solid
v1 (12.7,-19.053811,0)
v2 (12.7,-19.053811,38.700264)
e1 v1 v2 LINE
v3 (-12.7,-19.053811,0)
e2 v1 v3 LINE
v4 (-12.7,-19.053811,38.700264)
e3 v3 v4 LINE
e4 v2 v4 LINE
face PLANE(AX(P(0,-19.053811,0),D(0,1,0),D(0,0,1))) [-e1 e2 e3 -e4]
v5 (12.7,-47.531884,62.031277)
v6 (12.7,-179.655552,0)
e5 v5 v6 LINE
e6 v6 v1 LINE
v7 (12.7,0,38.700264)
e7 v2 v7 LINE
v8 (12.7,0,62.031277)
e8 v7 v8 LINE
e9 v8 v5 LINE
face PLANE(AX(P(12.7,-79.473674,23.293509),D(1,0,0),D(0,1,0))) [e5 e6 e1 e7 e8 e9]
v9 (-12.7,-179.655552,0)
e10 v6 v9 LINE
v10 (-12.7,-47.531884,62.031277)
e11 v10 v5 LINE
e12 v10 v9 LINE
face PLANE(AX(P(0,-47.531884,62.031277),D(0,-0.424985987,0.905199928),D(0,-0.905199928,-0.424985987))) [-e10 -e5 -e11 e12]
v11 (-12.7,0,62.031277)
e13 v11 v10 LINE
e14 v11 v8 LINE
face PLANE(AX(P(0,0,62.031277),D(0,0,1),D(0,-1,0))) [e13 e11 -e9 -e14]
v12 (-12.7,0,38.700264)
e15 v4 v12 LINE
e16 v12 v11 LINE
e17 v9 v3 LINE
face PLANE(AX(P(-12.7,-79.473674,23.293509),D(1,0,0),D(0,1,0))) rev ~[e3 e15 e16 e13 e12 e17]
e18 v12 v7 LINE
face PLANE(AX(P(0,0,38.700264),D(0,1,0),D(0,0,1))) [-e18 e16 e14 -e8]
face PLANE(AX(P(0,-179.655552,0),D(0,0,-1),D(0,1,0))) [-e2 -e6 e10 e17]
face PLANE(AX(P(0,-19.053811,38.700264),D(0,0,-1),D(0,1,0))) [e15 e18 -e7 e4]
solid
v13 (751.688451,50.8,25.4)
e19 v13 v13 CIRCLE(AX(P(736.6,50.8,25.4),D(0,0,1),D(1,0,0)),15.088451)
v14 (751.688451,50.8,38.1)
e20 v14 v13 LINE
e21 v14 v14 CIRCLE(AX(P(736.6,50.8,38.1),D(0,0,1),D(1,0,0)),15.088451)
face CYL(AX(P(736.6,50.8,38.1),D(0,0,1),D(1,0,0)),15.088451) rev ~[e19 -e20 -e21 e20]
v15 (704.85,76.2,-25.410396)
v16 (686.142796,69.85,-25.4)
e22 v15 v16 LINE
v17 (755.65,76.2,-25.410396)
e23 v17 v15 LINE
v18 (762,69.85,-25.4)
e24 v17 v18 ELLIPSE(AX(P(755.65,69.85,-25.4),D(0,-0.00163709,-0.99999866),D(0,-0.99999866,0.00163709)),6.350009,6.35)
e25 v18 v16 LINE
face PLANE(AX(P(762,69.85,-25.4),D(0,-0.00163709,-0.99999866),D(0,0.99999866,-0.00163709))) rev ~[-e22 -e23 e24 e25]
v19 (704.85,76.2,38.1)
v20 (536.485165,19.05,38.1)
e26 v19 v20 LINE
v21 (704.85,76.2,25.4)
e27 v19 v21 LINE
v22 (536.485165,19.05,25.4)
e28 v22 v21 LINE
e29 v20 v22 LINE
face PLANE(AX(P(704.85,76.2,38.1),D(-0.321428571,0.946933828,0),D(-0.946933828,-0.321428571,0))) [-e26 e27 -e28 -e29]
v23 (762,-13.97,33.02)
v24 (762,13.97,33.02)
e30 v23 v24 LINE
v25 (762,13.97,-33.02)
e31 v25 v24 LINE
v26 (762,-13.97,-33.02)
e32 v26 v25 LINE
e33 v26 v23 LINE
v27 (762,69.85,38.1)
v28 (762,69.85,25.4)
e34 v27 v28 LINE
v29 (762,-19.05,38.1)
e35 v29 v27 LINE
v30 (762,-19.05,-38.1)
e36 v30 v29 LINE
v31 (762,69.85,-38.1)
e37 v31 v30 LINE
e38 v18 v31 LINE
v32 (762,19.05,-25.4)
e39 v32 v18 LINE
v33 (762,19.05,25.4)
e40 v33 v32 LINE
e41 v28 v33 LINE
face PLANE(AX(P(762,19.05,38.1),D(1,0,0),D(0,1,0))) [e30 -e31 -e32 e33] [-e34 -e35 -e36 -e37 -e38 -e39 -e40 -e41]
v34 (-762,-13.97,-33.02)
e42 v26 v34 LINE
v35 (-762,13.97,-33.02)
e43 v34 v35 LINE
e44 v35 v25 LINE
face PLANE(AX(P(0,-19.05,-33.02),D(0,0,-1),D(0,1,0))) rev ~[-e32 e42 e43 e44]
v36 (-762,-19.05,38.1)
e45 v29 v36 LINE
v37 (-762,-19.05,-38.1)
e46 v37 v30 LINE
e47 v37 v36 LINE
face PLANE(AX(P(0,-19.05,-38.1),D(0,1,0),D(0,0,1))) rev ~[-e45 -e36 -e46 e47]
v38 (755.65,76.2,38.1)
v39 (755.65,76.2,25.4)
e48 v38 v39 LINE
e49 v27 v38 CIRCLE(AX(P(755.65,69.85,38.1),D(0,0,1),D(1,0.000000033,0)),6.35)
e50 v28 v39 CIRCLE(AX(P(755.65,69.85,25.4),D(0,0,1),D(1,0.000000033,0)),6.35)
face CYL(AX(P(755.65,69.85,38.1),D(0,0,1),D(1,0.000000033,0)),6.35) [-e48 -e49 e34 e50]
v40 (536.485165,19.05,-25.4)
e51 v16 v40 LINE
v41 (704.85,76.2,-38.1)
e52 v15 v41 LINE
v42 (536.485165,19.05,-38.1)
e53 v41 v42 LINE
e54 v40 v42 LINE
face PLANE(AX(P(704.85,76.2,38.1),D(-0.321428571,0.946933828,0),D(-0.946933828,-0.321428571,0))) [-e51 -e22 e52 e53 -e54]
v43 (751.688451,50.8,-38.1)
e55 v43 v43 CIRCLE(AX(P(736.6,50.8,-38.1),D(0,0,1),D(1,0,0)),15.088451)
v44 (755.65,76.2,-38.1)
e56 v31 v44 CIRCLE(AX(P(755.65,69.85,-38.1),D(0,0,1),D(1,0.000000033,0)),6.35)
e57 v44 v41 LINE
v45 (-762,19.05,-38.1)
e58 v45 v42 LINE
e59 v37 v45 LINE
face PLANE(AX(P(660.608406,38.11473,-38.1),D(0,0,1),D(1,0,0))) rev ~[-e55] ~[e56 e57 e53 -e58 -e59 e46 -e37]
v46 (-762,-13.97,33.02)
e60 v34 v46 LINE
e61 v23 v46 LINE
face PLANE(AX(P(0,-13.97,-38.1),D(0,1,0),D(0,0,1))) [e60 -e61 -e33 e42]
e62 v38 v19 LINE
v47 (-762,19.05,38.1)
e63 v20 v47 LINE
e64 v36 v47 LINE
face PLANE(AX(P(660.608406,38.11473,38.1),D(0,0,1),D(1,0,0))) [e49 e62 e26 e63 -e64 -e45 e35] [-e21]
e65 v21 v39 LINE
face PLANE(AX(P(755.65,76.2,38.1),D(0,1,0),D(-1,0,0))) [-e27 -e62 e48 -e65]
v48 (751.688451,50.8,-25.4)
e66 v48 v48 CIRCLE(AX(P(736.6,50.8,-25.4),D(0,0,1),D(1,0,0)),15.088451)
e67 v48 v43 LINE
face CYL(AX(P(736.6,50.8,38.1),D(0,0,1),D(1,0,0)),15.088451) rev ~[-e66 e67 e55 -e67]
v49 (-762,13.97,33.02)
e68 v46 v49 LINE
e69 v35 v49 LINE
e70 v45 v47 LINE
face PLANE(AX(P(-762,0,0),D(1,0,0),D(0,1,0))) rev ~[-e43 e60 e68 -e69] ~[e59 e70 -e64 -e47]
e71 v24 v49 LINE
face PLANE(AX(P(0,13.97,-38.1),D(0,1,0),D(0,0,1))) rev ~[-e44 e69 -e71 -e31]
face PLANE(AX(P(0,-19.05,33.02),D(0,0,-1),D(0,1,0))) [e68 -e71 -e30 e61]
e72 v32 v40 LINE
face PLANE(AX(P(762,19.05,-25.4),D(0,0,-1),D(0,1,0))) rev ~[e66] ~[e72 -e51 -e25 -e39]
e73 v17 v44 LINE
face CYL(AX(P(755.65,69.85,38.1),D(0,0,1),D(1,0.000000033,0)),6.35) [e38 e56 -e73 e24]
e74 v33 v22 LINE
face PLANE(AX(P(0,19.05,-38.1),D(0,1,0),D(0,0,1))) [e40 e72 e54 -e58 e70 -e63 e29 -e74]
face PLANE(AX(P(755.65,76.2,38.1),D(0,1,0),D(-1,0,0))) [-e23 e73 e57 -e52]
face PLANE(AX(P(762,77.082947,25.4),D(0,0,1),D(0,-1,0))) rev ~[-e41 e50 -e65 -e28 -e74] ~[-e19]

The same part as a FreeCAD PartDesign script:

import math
import FreeCAD as App
import Part
import Sketcher
Q = App.Units.Quantity


def faces_at(feature, points):
    """Names of the faces that lie closest to the given points."""
    faces = feature.Shape.Faces
    near = lambda p: min(range(len(faces)), key=lambda i: faces[i].distToShape(Part.Vertex(*p))[0])
    return sorted({f"Face{near(p) + 1}" for p in points})

doc = App.newDocument("Part")
body = doc.addObject("PartDesign::Body", "Body")

# Sketch on YZ plane
sketch1 = body.newObject("Sketcher::SketchObject", "Sketch")
sketch1.AttachmentSupport = (doc.getObject("YZ_Plane"), [""])
sketch1.MapMode = "FlatFace"
sketch1.addGeometry(Part.LineSegment(App.Vector(-19, 38, 0), App.Vector(-19, -38, 0)), False)
sketch1.addGeometry(Part.LineSegment(App.Vector(-19, -38, 0), App.Vector(19, -38, 0)), False)
sketch1.addGeometry(Part.LineSegment(App.Vector(19, -38, 0), App.Vector(19, 38, 0)), False)
sketch1.addGeometry(Part.LineSegment(App.Vector(19, 38, 0), App.Vector(-19, 38, 0)), False)
sketch1.addConstraint(Sketcher.Constraint("Coincident", 0, 2, 1, 1))
sketch1.addConstraint(Sketcher.Constraint("Coincident", 1, 2, 2, 1))
sketch1.addConstraint(Sketcher.Constraint("Coincident", 2, 2, 3, 1))
sketch1.addConstraint(Sketcher.Constraint("Coincident", 3, 2, 0, 1))
sketch1.addConstraint(Sketcher.Constraint("Vertical", 0))
sketch1.addConstraint(Sketcher.Constraint("Horizontal", 1))
sketch1.addConstraint(Sketcher.Constraint("Vertical", 2))
sketch1.addConstraint(Sketcher.Constraint("Horizontal", 3))
sketch1.addConstraint(Sketcher.Constraint("Symmetric", 0, 2, 2, 2, -1, 1))
sketch1.addConstraint(Sketcher.Constraint("DistanceY", 0, 2, 0, 1, Q("3 in")))
sketch1.addConstraint(Sketcher.Constraint("DistanceX", 1, 1, 1, 2, Q("1.5 in")))
pad1 = body.newObject("PartDesign::Pad", "Pad")
pad1.Profile = sketch1
pad1.Length = Q("60 in")
pad1.Midplane = True
doc.recompute()

thickness = body.newObject("PartDesign::Thickness", "Thickness")
thickness.Base = (pad1, faces_at(pad1, [(-762, 0, 0), (762, 0, 0)]))
thickness.Value = Q("0.2 in")
thickness.Reversed = True
thickness.Join = "Arc"

# Sketch on XY plane
sketch2 = body.newObject("Sketcher::SketchObject", "Sketch001")
sketch2.AttachmentSupport = (doc.getObject("XY_Plane"), [""])
sketch2.MapMode = "FlatFace"
sketch2.AttachmentOffset = App.Placement(App.Vector(0, 0, 1.5 * 25.4), App.Rotation())
sketch2.addGeometry(Part.LineSegment(App.Vector(536, 19, 0), App.Vector(762, 19, 0)), False)
sketch2.addGeometry(Part.LineSegment(App.Vector(762, 19, 0), App.Vector(762, 70, 0)), False)
sketch2.addGeometry(Part.ArcOfCircle(Part.Circle(App.Vector(756, 70, 0), App.Vector(0, 0, 1), 6), math.radians(0), math.radians(90)), False)
sketch2.addGeometry(Part.LineSegment(App.Vector(756, 76, 0), App.Vector(705, 76, 0)), False)
sketch2.addGeometry(Part.LineSegment(App.Vector(705, 76, 0), App.Vector(536, 19, 0)), False)
sketch2.addGeometry(Part.Circle(App.Vector(737, 51, 0), App.Vector(0, 0, 1), 15), False)
sketch2.addConstraint(Sketcher.Constraint("Coincident", 0, 2, 1, 1))
sketch2.addConstraint(Sketcher.Constraint("Tangent", 1, 2, 2, 1))
sketch2.addConstraint(Sketcher.Constraint("Tangent", 2, 2, 3, 1))
sketch2.addConstraint(Sketcher.Constraint("Coincident", 3, 2, 4, 1))
sketch2.addConstraint(Sketcher.Constraint("Coincident", 4, 2, 0, 1))
sketch2.addConstraint(Sketcher.Constraint("Horizontal", 0))
sketch2.addConstraint(Sketcher.Constraint("Vertical", 1))
sketch2.addConstraint(Sketcher.Constraint("Horizontal", 3))
sketch2.addConstraint(Sketcher.Constraint("Equal", 3, 1))
sketch2.addConstraint(Sketcher.Constraint("DistanceX", 3, 2, 3, 1, Q("2 in")))
sketch2.addConstraint(Sketcher.Constraint("Radius", 2, Q("0.25 in")))
sketch2.addConstraint(Sketcher.Constraint("Distance", 4, Q("7 in")))
sketch2.addConstraint(Sketcher.Constraint("DistanceX", -1, 1, 5, 3, Q("29 in")))
sketch2.addConstraint(Sketcher.Constraint("DistanceY", -1, 1, 5, 3, Q("2 in")))
sketch2.addConstraint(Sketcher.Constraint("DistanceX", -1, 1, 0, 2, Q("30 in")))
sketch2.addConstraint(Sketcher.Constraint("DistanceY", -1, 1, 2, 2, Q("3 in")))
sketch2.addConstraint(Sketcher.Constraint("Diameter", 5, Q("30.176902 mm")))
pad2 = body.newObject("PartDesign::Pad", "Pad001")
pad2.Profile = sketch2
pad2.Length = Q("3 in")
pad2.Reversed = True

# Sketch on YZ plane
sketch3 = body.newObject("Sketcher::SketchObject", "Sketch002")
sketch3.AttachmentSupport = (doc.getObject("YZ_Plane"), [""])
sketch3.MapMode = "FlatFace"
sketch3.AttachmentOffset = App.Placement(App.Vector(0, 0, 30 * 25.4), App.Rotation())
sketch3.addGeometry(Part.LineSegment(App.Vector(77, 25, 0), App.Vector(19, 25, 0)), False)
sketch3.addGeometry(Part.LineSegment(App.Vector(19, 25, 0), App.Vector(19, -25, 0)), False)
sketch3.addGeometry(Part.LineSegment(App.Vector(19, -25, 0), App.Vector(70, -25, 0)), False)
sketch3.addGeometry(Part.LineSegment(App.Vector(70, -25, 0), App.Vector(77, -25, 0)), False)
sketch3.addGeometry(Part.LineSegment(App.Vector(77, -25, 0), App.Vector(77, 25, 0)), False)
sketch3.addConstraint(Sketcher.Constraint("Coincident", 0, 2, 1, 1))
sketch3.addConstraint(Sketcher.Constraint("Coincident", 1, 2, 2, 1))
sketch3.addConstraint(Sketcher.Constraint("Coincident", 2, 2, 3, 1))
sketch3.addConstraint(Sketcher.Constraint("Coincident", 3, 2, 4, 1))
sketch3.addConstraint(Sketcher.Constraint("Coincident", 4, 2, 0, 1))
sketch3.addConstraint(Sketcher.Constraint("Horizontal", 0))
sketch3.addConstraint(Sketcher.Constraint("Vertical", 1))
sketch3.addConstraint(Sketcher.Constraint("Horizontal", 2))
sketch3.addConstraint(Sketcher.Constraint("Vertical", 4))
sketch3.addConstraint(Sketcher.Constraint("Equal", 2, 1))
sketch3.addConstraint(Sketcher.Constraint("DistanceX", 2, 1, 2, 2, Q("2 in")))
sketch3.addConstraint(Sketcher.Constraint("DistanceY", -1, 1, 0, 2, Q("1 in")))
sketch3.addConstraint(Sketcher.Constraint("DistanceX", -1, 1, 0, 2, Q("0.75 in")))
sketch3.addConstraint(Sketcher.Constraint("DistanceY", 4, 1, 4, 2, Q("50.811841 mm")))
sketch3.addConstraint(Sketcher.Constraint("DistanceX", 0, 2, 0, 1, Q("58.032947 mm")))
pocket1 = body.newObject("PartDesign::Pocket", "Pocket")
pocket1.Profile = sketch3
pocket1.Type = "ThroughAll"
body2 = doc.addObject("PartDesign::Body", "Body001")

# Sketch on YZ plane
sketch4 = body2.newObject("Sketcher::SketchObject", "Sketch003")
sketch4.AttachmentSupport = (doc.getObject("YZ_Plane001"), [""])
sketch4.MapMode = "FlatFace"
sketch4.addGeometry(Part.LineSegment(App.Vector(-19, 39, 0), App.Vector(0, 39, 0)), False)
sketch4.addGeometry(Part.LineSegment(App.Vector(0, 39, 0), App.Vector(0, 62, 0)), False)
sketch4.addGeometry(Part.LineSegment(App.Vector(0, 62, 0), App.Vector(-48, 62, 0)), False)
sketch4.addGeometry(Part.LineSegment(App.Vector(-48, 62, 0), App.Vector(-180, 0, 0)), False)
sketch4.addGeometry(Part.LineSegment(App.Vector(-180, 0, 0), App.Vector(-19, 0, 0)), False)
sketch4.addGeometry(Part.LineSegment(App.Vector(-19, 0, 0), App.Vector(-19, 39, 0)), False)
sketch4.addConstraint(Sketcher.Constraint("Coincident", 0, 2, 1, 1))
sketch4.addConstraint(Sketcher.Constraint("Coincident", 1, 2, 2, 1))
sketch4.addConstraint(Sketcher.Constraint("Coincident", 2, 2, 3, 1))
sketch4.addConstraint(Sketcher.Constraint("Coincident", 3, 2, 4, 1))
sketch4.addConstraint(Sketcher.Constraint("Coincident", 4, 2, 5, 1))
sketch4.addConstraint(Sketcher.Constraint("Coincident", 5, 2, 0, 1))
sketch4.addConstraint(Sketcher.Constraint("Horizontal", 0))
sketch4.addConstraint(Sketcher.Constraint("Vertical", 1))
sketch4.addConstraint(Sketcher.Constraint("Horizontal", 2))
sketch4.addConstraint(Sketcher.Constraint("Horizontal", 4))
sketch4.addConstraint(Sketcher.Constraint("Vertical", 5))
sketch4.addConstraint(Sketcher.Constraint("PointOnObject", 0, 2, -2))
sketch4.addConstraint(Sketcher.Constraint("PointOnObject", 3, 2, -1))
sketch4.addConstraint(Sketcher.Constraint("DistanceX", 0, 1, 0, 2, Q("19.053811 mm")))
sketch4.addConstraint(Sketcher.Constraint("DistanceX", 4, 1, 4, 2, Q("160.601741 mm")))
sketch4.addConstraint(Sketcher.Constraint("Distance", 3, Q("145.960758 mm")))
sketch4.addConstraint(Sketcher.Constraint("DistanceX", 2, 2, 2, 1, Q("47.531884 mm")))
sketch4.addConstraint(Sketcher.Constraint("DistanceY", 1, 1, 1, 2, Q("23.331013 mm")))
pad3 = body2.newObject("PartDesign::Pad", "Pad002")
pad3.Profile = sketch4
pad3.Length = Q("1 in")
pad3.Midplane = True

doc.recompute()
